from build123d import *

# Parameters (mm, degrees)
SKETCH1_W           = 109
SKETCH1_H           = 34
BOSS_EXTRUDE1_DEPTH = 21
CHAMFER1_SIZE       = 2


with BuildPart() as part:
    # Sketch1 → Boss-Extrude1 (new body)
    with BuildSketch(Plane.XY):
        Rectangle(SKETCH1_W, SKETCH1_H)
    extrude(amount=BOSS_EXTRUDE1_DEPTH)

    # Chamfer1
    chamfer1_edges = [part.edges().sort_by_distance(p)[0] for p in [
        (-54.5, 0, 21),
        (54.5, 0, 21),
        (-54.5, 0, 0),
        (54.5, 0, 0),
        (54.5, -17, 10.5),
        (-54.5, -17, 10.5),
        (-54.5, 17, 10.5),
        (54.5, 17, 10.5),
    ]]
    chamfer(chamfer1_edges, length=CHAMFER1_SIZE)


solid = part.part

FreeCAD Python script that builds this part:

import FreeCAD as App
import Part
import Sketcher

V = App.Vector
Q = App.Units.Quantity


def edges_at(feature, points):
    """Names of the edges that pass closest to the given points."""
    edges = feature.Shape.Edges
    near = lambda p: min(range(len(edges)), key=lambda i: edges[i].distToShape(Part.Vertex(*p))[0])
    return sorted({f"Edge{near(p) + 1}" for p in points})


def add_polygon(sketch, points):
    """Adds a closed chain of lines whose ends are joined by coincident constraints."""
    first, n = sketch.GeometryCount, len(points)
    for a, b in zip(points, points[1:] + points[:1]):
        sketch.addGeometry(Part.LineSegment(App.Vector(*a, 0), App.Vector(*b, 0)), False)
    for i in range(n):
        sketch.addConstraint(Sketcher.Constraint("Coincident", first + i, 2, first + (i + 1) % n, 1))

doc = App.newDocument("Part")
body = doc.addObject("PartDesign::Body", "Body")

# Sketch on XY plane
sketch1 = doc.addObject("Sketcher::SketchObject", "Sketch")
body.addObject(sketch1)
sketch1.AttachmentSupport = (doc.XY_Plane, [""])
sketch1.MapMode = "FlatFace"
add_polygon(sketch1, [(-54, 17), (-54, -17), (54, -17), (54, 17)])  # lines 0-3
sketch1.addConstraint(Sketcher.Constraint("Vertical", 0))
sketch1.addConstraint(Sketcher.Constraint("Horizontal", 1))
sketch1.addConstraint(Sketcher.Constraint("Vertical", 2))
sketch1.addConstraint(Sketcher.Constraint("Horizontal", 3))
sketch1.addConstraint(Sketcher.Constraint("Symmetric", 0, 2, 2, 2, -1, 1))
sketch1.addConstraint(Sketcher.Constraint("DistanceX", 1, 1, 1, 2, Q("109 mm")))
sketch1.addConstraint(Sketcher.Constraint("DistanceY", 0, 2, 0, 1, Q("34 mm")))
pad1 = doc.addObject("PartDesign::Pad", "Pad")
body.addObject(pad1)
pad1.Profile = sketch1
pad1.Length = 21
doc.recompute()

chamfer = doc.addObject("PartDesign::Chamfer", "Chamfer")
body.addObject(chamfer)
chamfer.Base = (pad1, edges_at(pad1, [
    (-54.5, 0, 21),
    (54.5, 0, 21),
    (-54.5, 0, 0),
    (54.5, 0, 0),
    (54.5, -17, 10.5),
    (-54.5, -17, 10.5),
    (-54.5, 17, 10.5),
    (54.5, 17, 10.5),
]))
chamfer.Size = 2

doc.recompute()
